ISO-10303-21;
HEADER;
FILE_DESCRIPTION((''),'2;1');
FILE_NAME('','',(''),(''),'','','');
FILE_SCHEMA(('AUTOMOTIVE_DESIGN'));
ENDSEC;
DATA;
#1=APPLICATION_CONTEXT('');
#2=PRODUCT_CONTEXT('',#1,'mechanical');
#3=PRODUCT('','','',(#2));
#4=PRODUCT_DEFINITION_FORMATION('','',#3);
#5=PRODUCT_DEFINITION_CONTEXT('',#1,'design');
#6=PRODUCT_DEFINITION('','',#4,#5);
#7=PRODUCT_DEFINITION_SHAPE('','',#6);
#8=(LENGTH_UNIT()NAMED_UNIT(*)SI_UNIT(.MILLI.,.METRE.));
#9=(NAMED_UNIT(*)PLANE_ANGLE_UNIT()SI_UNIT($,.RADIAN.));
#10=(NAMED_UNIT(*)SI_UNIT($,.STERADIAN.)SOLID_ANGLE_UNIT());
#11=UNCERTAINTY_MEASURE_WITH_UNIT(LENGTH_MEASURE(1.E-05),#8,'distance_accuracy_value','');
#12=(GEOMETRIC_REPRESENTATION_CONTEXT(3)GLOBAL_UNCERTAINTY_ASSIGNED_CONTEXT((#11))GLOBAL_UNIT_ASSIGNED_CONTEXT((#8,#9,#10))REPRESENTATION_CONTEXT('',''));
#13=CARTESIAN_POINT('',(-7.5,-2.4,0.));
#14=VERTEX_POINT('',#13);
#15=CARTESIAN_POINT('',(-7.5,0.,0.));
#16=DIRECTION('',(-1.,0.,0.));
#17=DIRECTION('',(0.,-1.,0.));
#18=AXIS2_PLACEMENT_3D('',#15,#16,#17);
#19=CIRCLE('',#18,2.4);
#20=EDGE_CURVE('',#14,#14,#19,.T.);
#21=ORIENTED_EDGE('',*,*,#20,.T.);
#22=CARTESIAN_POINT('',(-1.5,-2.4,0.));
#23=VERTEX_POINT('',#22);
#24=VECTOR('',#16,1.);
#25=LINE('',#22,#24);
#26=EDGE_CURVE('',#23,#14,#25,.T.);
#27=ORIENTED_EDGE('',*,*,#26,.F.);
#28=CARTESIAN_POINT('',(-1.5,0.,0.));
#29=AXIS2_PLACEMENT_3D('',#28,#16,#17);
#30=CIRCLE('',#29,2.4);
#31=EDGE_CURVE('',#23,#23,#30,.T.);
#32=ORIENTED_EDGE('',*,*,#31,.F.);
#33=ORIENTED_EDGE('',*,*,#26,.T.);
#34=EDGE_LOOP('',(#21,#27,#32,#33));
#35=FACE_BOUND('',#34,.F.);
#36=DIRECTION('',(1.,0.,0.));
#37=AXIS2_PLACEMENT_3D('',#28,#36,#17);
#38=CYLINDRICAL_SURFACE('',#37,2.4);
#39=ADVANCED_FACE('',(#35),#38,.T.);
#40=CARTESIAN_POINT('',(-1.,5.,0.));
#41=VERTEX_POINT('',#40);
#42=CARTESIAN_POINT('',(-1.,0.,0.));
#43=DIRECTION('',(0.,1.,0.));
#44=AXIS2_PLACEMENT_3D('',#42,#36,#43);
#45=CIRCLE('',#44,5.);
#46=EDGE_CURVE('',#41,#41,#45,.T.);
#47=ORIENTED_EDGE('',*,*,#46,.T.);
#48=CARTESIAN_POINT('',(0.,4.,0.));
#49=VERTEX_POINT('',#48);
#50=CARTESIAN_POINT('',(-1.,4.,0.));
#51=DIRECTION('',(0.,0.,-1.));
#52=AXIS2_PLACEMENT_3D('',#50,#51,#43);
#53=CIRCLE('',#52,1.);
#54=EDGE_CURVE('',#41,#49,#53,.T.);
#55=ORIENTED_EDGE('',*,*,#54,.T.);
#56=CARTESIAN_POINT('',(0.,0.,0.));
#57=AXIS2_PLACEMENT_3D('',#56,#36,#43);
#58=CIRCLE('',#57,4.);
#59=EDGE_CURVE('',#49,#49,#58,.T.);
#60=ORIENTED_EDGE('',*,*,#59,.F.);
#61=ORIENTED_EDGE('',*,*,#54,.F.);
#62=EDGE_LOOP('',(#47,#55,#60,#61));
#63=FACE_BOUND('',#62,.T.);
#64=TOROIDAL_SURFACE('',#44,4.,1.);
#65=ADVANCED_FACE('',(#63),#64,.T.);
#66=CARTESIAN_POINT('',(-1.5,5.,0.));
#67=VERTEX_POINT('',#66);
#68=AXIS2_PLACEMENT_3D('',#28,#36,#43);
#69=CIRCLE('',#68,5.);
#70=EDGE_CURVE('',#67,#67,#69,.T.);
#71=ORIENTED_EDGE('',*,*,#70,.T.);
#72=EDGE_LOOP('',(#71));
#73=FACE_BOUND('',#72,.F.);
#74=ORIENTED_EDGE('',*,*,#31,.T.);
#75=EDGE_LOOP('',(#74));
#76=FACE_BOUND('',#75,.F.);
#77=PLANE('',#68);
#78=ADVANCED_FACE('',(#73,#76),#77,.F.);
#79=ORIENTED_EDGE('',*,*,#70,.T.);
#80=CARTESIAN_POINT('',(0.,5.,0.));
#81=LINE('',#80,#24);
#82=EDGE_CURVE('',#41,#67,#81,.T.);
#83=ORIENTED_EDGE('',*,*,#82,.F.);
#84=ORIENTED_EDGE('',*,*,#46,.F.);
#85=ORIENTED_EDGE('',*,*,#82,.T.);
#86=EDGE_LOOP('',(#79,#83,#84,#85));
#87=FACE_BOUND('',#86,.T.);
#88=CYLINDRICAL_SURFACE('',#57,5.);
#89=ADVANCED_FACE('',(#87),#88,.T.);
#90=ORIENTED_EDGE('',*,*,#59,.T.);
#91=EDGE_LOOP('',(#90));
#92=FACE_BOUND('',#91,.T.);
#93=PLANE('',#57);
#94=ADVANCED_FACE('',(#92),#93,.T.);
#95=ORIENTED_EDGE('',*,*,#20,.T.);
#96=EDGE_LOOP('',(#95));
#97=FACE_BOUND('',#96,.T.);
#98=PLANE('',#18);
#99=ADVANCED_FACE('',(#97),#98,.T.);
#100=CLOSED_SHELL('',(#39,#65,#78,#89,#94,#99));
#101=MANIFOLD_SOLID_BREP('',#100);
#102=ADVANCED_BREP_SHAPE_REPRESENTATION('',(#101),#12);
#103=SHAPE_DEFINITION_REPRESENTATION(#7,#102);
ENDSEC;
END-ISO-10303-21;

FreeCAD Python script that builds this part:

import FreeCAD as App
import Part
import Sketcher
from FreeCAD import Vector


def edges_at(feature, points):
    """Names of the edges that pass closest to the given points."""
    edges = feature.Shape.Edges
    near = lambda p: min(range(len(edges)), key=lambda i: edges[i].distToShape(Part.Vertex(*p))[0])
    return sorted({f"Edge{near(p) + 1}" for p in points})

doc = App.newDocument("Part")
body = doc.addObject("PartDesign::Body", "Body")

sketch1 = doc.addObject("Sketcher::SketchObject", "Sketch")
body.addObject(sketch1)
sketch1.AttachmentSupport = (doc.YZ_Plane, [""])
sketch1.MapMode = "FlatFace"
sketch1.addGeometry(Part.Circle(Vector(0, 0, 0), Vector(0, 0, 1), 5), False)
sketch1.addConstraint([
    Sketcher.Constraint("Coincident", 0, 3, -1, 1),
    Sketcher.Constraint("Diameter", 0, 10.0),
])
pad1 = doc.addObject("PartDesign::Pad", "Pad")
body.addObject(pad1)
pad1.Profile = sketch1
pad1.Length = 1.5
pad1.Reversed = True
doc.recompute()

fillet = doc.addObject("PartDesign::Fillet", "Fillet")
body.addObject(fillet)
fillet.Base = (pad1, edges_at(pad1, [(0, -5, 0)]))
fillet.Radius = 1

sketch2 = doc.addObject("Sketcher::SketchObject", "Sketch001")
body.addObject(sketch2)
sketch2.AttachmentSupport = (doc.YZ_Plane, [""])
sketch2.MapMode = "FlatFace"
sketch2.AttachmentOffset = App.Placement(Vector(0, 0, -1.5), App.Rotation())
sketch2.addGeometry(Part.Circle(Vector(0, 0, 0), Vector(0, 0, 1), 2.4), False)
sketch2.addConstraint([
    Sketcher.Constraint("Coincident", 0, 3, -1, 1),
    Sketcher.Constraint("Diameter", 0, 4.8),
])
pad2 = doc.addObject("PartDesign::Pad", "Pad001")
body.addObject(pad2)
pad2.Profile = sketch2
pad2.Length = 6
pad2.Reversed = True

doc.recompute()
